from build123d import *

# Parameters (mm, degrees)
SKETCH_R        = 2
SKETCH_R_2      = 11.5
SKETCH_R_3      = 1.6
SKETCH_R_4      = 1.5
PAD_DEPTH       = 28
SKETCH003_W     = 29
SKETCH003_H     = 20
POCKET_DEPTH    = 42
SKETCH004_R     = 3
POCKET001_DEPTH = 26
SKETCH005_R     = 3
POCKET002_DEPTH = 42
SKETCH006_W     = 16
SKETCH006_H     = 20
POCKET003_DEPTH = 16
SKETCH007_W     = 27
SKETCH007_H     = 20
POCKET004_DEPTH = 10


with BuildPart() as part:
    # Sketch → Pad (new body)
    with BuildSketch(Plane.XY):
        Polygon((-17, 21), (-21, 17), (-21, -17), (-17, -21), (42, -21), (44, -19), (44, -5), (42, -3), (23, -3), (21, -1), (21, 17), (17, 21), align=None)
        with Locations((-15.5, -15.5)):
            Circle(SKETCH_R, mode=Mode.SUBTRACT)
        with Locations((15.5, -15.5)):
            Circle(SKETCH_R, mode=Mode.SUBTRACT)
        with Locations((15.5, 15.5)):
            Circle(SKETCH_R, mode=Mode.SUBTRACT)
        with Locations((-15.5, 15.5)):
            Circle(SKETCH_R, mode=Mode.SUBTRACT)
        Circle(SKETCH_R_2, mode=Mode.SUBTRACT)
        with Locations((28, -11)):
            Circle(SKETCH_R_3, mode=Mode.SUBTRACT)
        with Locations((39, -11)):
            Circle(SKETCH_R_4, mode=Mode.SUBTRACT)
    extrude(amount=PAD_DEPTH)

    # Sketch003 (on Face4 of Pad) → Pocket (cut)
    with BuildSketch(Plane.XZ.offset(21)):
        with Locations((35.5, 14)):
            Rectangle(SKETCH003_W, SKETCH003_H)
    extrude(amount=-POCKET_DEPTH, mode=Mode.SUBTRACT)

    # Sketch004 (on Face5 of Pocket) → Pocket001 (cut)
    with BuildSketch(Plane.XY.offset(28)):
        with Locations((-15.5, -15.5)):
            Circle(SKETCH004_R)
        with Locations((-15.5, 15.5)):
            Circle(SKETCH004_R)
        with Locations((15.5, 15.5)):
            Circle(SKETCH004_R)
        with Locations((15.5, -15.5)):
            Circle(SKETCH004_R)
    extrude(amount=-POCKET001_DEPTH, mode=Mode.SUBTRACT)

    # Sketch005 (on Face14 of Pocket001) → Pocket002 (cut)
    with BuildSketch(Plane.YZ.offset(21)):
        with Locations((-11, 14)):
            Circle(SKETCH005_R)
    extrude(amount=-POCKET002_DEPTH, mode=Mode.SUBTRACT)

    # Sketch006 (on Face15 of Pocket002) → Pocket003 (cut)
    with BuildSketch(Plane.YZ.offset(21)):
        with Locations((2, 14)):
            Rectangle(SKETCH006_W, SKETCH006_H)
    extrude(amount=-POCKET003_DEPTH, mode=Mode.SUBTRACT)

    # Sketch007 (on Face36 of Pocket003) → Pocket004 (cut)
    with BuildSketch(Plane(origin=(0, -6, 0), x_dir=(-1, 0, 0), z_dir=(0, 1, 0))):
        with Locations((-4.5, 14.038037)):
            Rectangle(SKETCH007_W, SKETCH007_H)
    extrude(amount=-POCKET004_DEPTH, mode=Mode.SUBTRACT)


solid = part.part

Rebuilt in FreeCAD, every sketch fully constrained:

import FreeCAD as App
import Part
import Sketcher


def add_polygon(sketch, points):
    """Adds a closed chain of lines whose ends are joined by coincident constraints."""
    first, n = sketch.GeometryCount, len(points)
    for a, b in zip(points, points[1:] + points[:1]):
        sketch.addGeometry(Part.LineSegment(App.Vector(*a, 0), App.Vector(*b, 0)), False)
    for i in range(n):
        sketch.addConstraint(Sketcher.Constraint("Coincident", first + i, 2, first + (i + 1) % n, 1))

doc = App.newDocument("Part")
body = doc.addObject("PartDesign::Body", "Body")

sketch1 = doc.addObject("Sketcher::SketchObject", "Sketch")
body.addObject(sketch1)
sketch1.AttachmentSupport = (doc.XY_Plane, [""])
sketch1.MapMode = "FlatFace"
add_polygon(sketch1, [(-17, 21), (-21, 17), (-21, -17), (-17, -21), (42, -21), (44, -19), (44, -5), (42, -3), (23, -3), (21, -1), (21, 17), (17, 21)])
sketch1.addGeometry(Part.Circle(App.Vector(-15.5, -15.5, 0), App.Vector(0, 0, 1), 2), False)
sketch1.addGeometry(Part.Circle(App.Vector(15.5, -15.5, 0), App.Vector(0, 0, 1), 2), False)
sketch1.addGeometry(Part.Circle(App.Vector(28, -11, 0), App.Vector(0, 0, 1), 1.6), False)
sketch1.addGeometry(Part.Circle(App.Vector(39, -11, 0), App.Vector(0, 0, 1), 1.5), False)
sketch1.addGeometry(Part.Circle(App.Vector(0, 0, 0), App.Vector(0, 0, 1), 11.5), False)
sketch1.addGeometry(Part.Circle(App.Vector(-15.5, 15.5, 0), App.Vector(0, 0, 1), 2), False)
sketch1.addGeometry(Part.Circle(App.Vector(15.5, 15.5, 0), App.Vector(0, 0, 1), 2), False)
sketch1.addConstraint(Sketcher.Constraint("Vertical", 1))
sketch1.addConstraint(Sketcher.Constraint("Horizontal", 3))
sketch1.addConstraint(Sketcher.Constraint("Vertical", 5))
sketch1.addConstraint(Sketcher.Constraint("Horizontal", 7))
sketch1.addConstraint(Sketcher.Constraint("Vertical", 9))
sketch1.addConstraint(Sketcher.Constraint("Horizontal", 11))
sketch1.addConstraint(Sketcher.Constraint("Coincident", 16, 3, -1, 1))
sketch1.addConstraint(Sketcher.Constraint("Equal", 12, 13))
sketch1.addConstraint(Sketcher.Constraint("Equal", 13, 17))
sketch1.addConstraint(Sketcher.Constraint("Equal", 17, 18))
sketch1.addConstraint(Sketcher.Constraint("Symmetric", 13, 3, 17, 3, -1, 1))
sketch1.addConstraint(Sketcher.Constraint("Symmetric", 12, 3, 18, 3, -1, 1))
sketch1.addConstraint(Sketcher.Constraint("Symmetric", 1, 2, 9, 2, -1, 1))
sketch1.addConstraint(Sketcher.Constraint("Symmetric", 2, 2, 10, 2, -1, 1))
sketch1.addConstraint(Sketcher.Constraint("Symmetric", 12, 3, 13, 3, -2))
sketch1.addConstraint(Sketcher.Constraint("Perpendicular", 0, 2))
sketch1.addConstraint(Sketcher.Constraint("Perpendicular", 2, 4))
sketch1.addConstraint(Sketcher.Constraint("Perpendicular", 4, 6))
sketch1.addConstraint(Sketcher.Constraint("Parallel", 6, 8))
sketch1.addConstraint(Sketcher.Constraint("Horizontal", 14, 3, 15, 3))
sketch1.addConstraint(Sketcher.Constraint("Horizontal", 0, 2, 9, 2))
sketch1.addConstraint(Sketcher.Constraint("Vertical", 3, 2, 6, 2))
sketch1.addConstraint(Sketcher.Constraint("Vertical", 2, 2, 11, 2))
sketch1.addConstraint(Sketcher.Constraint("Equal", 11, 1))
sketch1.addConstraint(Sketcher.Constraint("Equal", 6, 8))
sketch1.addConstraint(Sketcher.Constraint("Diameter", 12, 4.0))
sketch1.addConstraint(Sketcher.Constraint("Diameter", 15, 3.0))
sketch1.addConstraint(Sketcher.Constraint("Diameter", 16, 23.0))
sketch1.addConstraint(Sketcher.Constraint("Diameter", 14, 3.2))
sketch1.addConstraint(Sketcher.Constraint("DistanceX", 3, 1, 3, 2, 59.0))
sketch1.addConstraint(Sketcher.Constraint("DistanceX", 7, 2, 7, 1, 19.0))
sketch1.addConstraint(Sketcher.Constraint("DistanceX", 11, 2, 11, 1, 34.0))
sketch1.addConstraint(Sketcher.Constraint("DistanceY", 5, 1, 5, 2, 14.0))
sketch1.addConstraint(Sketcher.Constraint("DistanceY", 9, 1, 9, 2, 18.0))
sketch1.addConstraint(Sketcher.Constraint("DistanceX", -1, 1, 14, 3, 28.0))
sketch1.addConstraint(Sketcher.Constraint("DistanceY", 14, 3, -1, 1, 11.0))
sketch1.addConstraint(Sketcher.Constraint("DistanceX", -1, 1, 15, 3, 39.0))
sketch1.addConstraint(Sketcher.Constraint("DistanceX", 12, 3, 13, 3, 31.0))
sketch1.addConstraint(Sketcher.Constraint("DistanceY", 12, 3, 17, 3, 31.0))
pad1 = doc.addObject("PartDesign::Pad", "Pad")
body.addObject(pad1)
pad1.Profile = sketch1
pad1.Length = 28

sketch2 = doc.addObject("Sketcher::SketchObject", "Sketch001")
body.addObject(sketch2)
sketch2.AttachmentSupport = (doc.XZ_Plane, [""])
sketch2.MapMode = "FlatFace"
sketch2.AttachmentOffset = App.Placement(App.Vector(0, 0, 21), App.Rotation())
add_polygon(sketch2, [(21, 24), (21, 4), (50, 4), (50, 24)])
sketch2.addConstraint(Sketcher.Constraint("Vertical", 0))
sketch2.addConstraint(Sketcher.Constraint("Horizontal", 1))
sketch2.addConstraint(Sketcher.Constraint("Vertical", 2))
sketch2.addConstraint(Sketcher.Constraint("Horizontal", 3))
sketch2.addConstraint(Sketcher.Constraint("DistanceX", 1, 1, 1, 2, 29.0))
sketch2.addConstraint(Sketcher.Constraint("DistanceY", 0, 2, 0, 1, 20.0))
sketch2.addConstraint(Sketcher.Constraint("DistanceX", -1, 1, 0, 2, 21.0))
sketch2.addConstraint(Sketcher.Constraint("DistanceY", -1, 1, 0, 2, 4.0))
pocket1 = doc.addObject("PartDesign::Pocket", "Pocket")
body.addObject(pocket1)
pocket1.Profile = sketch2
pocket1.Length = 42

sketch3 = doc.addObject("Sketcher::SketchObject", "Sketch002")
body.addObject(sketch3)
sketch3.AttachmentSupport = (doc.XY_Plane, [""])
sketch3.MapMode = "FlatFace"
sketch3.AttachmentOffset = App.Placement(App.Vector(0, 0, 28), App.Rotation())
sketch3.addGeometry(Part.Circle(App.Vector(-15.5, -15.5, 0), App.Vector(0, 0, 1), 3), False)
sketch3.addGeometry(Part.Circle(App.Vector(-15.5, 15.5, 0), App.Vector(0, 0, 1), 3), False)
sketch3.addGeometry(Part.Circle(App.Vector(15.5, 15.5, 0), App.Vector(0, 0, 1), 3), False)
sketch3.addGeometry(Part.Circle(App.Vector(15.5, -15.5, 0), App.Vector(0, 0, 1), 3), False)
sketch3.addConstraint(Sketcher.Constraint("Equal", 0, 1))
sketch3.addConstraint(Sketcher.Constraint("Equal", 1, 2))
sketch3.addConstraint(Sketcher.Constraint("Equal", 2, 3))
sketch3.addConstraint(Sketcher.Constraint("Symmetric", 0, 3, 2, 3, -1, 1))
sketch3.addConstraint(Sketcher.Constraint("Symmetric", 1, 3, 3, 3, -1, 1))
sketch3.addConstraint(Sketcher.Constraint("Symmetric", 1, 3, 2, 3, -2))
sketch3.addConstraint(Sketcher.Constraint("Diameter", 0, 6.0))
sketch3.addConstraint(Sketcher.Constraint("DistanceY", 0, 3, 1, 3, 31.0))
sketch3.addConstraint(Sketcher.Constraint("DistanceX", 1, 3, 2, 3, 31.0))
pocket2 = doc.addObject("PartDesign::Pocket", "Pocket001")
body.addObject(pocket2)
pocket2.Profile = sketch3
pocket2.Length = 26

sketch4 = doc.addObject("Sketcher::SketchObject", "Sketch003")
body.addObject(sketch4)
sketch4.AttachmentSupport = (doc.YZ_Plane, [""])
sketch4.MapMode = "FlatFace"
sketch4.AttachmentOffset = App.Placement(App.Vector(0, 0, 21), App.Rotation())
sketch4.addGeometry(Part.Circle(App.Vector(-11, 14, 0), App.Vector(0, 0, 1), 3), False)
sketch4.addConstraint(Sketcher.Constraint("Diameter", 0, 6.0))
sketch4.addConstraint(Sketcher.Constraint("DistanceX", 0, 3, -1, 1, 11.0))
sketch4.addConstraint(Sketcher.Constraint("DistanceY", -1, 1, 0, 3, 14.0))
pocket3 = doc.addObject("PartDesign::Pocket", "Pocket002")
body.addObject(pocket3)
pocket3.Profile = sketch4
pocket3.Length = 42

sketch5 = doc.addObject("Sketcher::SketchObject", "Sketch004")
body.addObject(sketch5)
sketch5.AttachmentSupport = (doc.YZ_Plane, [""])
sketch5.MapMode = "FlatFace"
sketch5.AttachmentOffset = App.Placement(App.Vector(0, 0, 21), App.Rotation())
add_polygon(sketch5, [(-6, 24), (-6, 4), (10, 4), (10, 24)])
sketch5.addConstraint(Sketcher.Constraint("Vertical", 0))
sketch5.addConstraint(Sketcher.Constraint("Horizontal", 1))
sketch5.addConstraint(Sketcher.Constraint("Vertical", 2))
sketch5.addConstraint(Sketcher.Constraint("Horizontal", 3))
sketch5.addConstraint(Sketcher.Constraint("DistanceX", 1, 1, 1, 2, 16.0))
sketch5.addConstraint(Sketcher.Constraint("DistanceY", 0, 2, 0, 1, 20.0))
sketch5.addConstraint(Sketcher.Constraint("DistanceX", 0, 2, -1, 1, 6.0))
sketch5.addConstraint(Sketcher.Constraint("DistanceY", -1, 1, 0, 2, 4.0))
pocket4 = doc.addObject("PartDesign::Pocket", "Pocket003")
body.addObject(pocket4)
pocket4.Profile = sketch5
pocket4.Length = 16

sketch6 = doc.addObject("Sketcher::SketchObject", "Sketch005")
body.addObject(sketch6)
sketch6.AttachmentSupport = (doc.XZ_Plane, [""])
sketch6.MapMode = "FlatFace"
sketch6.AttachmentOffset = App.Placement(App.Vector(0, 0, 6), App.Rotation())
add_polygon(sketch6, [(18, 24), (18, 4), (-9, 4), (-9, 24)])
sketch6.addConstraint(Sketcher.Constraint("Vertical", 0))
sketch6.addConstraint(Sketcher.Constraint("Horizontal", 1))
sketch6.addConstraint(Sketcher.Constraint("Vertical", 2))
sketch6.addConstraint(Sketcher.Constraint("Horizontal", 3))
sketch6.addConstraint(Sketcher.Constraint("DistanceX", 1, 2, 1, 1, 27.0))
sketch6.addConstraint(Sketcher.Constraint("DistanceY", 0, 2, 0, 1, 20.0))
sketch6.addConstraint(Sketcher.Constraint("DistanceX", -1, 1, 0, 2, 18.0))
sketch6.addConstraint(Sketcher.Constraint("DistanceY", -1, 1, 0, 2, 4.038037))
pocket5 = doc.addObject("PartDesign::Pocket", "Pocket004")
body.addObject(pocket5)
pocket5.Profile = sketch6
pocket5.Length = 10
pocket5.Reversed = True

doc.recompute()
